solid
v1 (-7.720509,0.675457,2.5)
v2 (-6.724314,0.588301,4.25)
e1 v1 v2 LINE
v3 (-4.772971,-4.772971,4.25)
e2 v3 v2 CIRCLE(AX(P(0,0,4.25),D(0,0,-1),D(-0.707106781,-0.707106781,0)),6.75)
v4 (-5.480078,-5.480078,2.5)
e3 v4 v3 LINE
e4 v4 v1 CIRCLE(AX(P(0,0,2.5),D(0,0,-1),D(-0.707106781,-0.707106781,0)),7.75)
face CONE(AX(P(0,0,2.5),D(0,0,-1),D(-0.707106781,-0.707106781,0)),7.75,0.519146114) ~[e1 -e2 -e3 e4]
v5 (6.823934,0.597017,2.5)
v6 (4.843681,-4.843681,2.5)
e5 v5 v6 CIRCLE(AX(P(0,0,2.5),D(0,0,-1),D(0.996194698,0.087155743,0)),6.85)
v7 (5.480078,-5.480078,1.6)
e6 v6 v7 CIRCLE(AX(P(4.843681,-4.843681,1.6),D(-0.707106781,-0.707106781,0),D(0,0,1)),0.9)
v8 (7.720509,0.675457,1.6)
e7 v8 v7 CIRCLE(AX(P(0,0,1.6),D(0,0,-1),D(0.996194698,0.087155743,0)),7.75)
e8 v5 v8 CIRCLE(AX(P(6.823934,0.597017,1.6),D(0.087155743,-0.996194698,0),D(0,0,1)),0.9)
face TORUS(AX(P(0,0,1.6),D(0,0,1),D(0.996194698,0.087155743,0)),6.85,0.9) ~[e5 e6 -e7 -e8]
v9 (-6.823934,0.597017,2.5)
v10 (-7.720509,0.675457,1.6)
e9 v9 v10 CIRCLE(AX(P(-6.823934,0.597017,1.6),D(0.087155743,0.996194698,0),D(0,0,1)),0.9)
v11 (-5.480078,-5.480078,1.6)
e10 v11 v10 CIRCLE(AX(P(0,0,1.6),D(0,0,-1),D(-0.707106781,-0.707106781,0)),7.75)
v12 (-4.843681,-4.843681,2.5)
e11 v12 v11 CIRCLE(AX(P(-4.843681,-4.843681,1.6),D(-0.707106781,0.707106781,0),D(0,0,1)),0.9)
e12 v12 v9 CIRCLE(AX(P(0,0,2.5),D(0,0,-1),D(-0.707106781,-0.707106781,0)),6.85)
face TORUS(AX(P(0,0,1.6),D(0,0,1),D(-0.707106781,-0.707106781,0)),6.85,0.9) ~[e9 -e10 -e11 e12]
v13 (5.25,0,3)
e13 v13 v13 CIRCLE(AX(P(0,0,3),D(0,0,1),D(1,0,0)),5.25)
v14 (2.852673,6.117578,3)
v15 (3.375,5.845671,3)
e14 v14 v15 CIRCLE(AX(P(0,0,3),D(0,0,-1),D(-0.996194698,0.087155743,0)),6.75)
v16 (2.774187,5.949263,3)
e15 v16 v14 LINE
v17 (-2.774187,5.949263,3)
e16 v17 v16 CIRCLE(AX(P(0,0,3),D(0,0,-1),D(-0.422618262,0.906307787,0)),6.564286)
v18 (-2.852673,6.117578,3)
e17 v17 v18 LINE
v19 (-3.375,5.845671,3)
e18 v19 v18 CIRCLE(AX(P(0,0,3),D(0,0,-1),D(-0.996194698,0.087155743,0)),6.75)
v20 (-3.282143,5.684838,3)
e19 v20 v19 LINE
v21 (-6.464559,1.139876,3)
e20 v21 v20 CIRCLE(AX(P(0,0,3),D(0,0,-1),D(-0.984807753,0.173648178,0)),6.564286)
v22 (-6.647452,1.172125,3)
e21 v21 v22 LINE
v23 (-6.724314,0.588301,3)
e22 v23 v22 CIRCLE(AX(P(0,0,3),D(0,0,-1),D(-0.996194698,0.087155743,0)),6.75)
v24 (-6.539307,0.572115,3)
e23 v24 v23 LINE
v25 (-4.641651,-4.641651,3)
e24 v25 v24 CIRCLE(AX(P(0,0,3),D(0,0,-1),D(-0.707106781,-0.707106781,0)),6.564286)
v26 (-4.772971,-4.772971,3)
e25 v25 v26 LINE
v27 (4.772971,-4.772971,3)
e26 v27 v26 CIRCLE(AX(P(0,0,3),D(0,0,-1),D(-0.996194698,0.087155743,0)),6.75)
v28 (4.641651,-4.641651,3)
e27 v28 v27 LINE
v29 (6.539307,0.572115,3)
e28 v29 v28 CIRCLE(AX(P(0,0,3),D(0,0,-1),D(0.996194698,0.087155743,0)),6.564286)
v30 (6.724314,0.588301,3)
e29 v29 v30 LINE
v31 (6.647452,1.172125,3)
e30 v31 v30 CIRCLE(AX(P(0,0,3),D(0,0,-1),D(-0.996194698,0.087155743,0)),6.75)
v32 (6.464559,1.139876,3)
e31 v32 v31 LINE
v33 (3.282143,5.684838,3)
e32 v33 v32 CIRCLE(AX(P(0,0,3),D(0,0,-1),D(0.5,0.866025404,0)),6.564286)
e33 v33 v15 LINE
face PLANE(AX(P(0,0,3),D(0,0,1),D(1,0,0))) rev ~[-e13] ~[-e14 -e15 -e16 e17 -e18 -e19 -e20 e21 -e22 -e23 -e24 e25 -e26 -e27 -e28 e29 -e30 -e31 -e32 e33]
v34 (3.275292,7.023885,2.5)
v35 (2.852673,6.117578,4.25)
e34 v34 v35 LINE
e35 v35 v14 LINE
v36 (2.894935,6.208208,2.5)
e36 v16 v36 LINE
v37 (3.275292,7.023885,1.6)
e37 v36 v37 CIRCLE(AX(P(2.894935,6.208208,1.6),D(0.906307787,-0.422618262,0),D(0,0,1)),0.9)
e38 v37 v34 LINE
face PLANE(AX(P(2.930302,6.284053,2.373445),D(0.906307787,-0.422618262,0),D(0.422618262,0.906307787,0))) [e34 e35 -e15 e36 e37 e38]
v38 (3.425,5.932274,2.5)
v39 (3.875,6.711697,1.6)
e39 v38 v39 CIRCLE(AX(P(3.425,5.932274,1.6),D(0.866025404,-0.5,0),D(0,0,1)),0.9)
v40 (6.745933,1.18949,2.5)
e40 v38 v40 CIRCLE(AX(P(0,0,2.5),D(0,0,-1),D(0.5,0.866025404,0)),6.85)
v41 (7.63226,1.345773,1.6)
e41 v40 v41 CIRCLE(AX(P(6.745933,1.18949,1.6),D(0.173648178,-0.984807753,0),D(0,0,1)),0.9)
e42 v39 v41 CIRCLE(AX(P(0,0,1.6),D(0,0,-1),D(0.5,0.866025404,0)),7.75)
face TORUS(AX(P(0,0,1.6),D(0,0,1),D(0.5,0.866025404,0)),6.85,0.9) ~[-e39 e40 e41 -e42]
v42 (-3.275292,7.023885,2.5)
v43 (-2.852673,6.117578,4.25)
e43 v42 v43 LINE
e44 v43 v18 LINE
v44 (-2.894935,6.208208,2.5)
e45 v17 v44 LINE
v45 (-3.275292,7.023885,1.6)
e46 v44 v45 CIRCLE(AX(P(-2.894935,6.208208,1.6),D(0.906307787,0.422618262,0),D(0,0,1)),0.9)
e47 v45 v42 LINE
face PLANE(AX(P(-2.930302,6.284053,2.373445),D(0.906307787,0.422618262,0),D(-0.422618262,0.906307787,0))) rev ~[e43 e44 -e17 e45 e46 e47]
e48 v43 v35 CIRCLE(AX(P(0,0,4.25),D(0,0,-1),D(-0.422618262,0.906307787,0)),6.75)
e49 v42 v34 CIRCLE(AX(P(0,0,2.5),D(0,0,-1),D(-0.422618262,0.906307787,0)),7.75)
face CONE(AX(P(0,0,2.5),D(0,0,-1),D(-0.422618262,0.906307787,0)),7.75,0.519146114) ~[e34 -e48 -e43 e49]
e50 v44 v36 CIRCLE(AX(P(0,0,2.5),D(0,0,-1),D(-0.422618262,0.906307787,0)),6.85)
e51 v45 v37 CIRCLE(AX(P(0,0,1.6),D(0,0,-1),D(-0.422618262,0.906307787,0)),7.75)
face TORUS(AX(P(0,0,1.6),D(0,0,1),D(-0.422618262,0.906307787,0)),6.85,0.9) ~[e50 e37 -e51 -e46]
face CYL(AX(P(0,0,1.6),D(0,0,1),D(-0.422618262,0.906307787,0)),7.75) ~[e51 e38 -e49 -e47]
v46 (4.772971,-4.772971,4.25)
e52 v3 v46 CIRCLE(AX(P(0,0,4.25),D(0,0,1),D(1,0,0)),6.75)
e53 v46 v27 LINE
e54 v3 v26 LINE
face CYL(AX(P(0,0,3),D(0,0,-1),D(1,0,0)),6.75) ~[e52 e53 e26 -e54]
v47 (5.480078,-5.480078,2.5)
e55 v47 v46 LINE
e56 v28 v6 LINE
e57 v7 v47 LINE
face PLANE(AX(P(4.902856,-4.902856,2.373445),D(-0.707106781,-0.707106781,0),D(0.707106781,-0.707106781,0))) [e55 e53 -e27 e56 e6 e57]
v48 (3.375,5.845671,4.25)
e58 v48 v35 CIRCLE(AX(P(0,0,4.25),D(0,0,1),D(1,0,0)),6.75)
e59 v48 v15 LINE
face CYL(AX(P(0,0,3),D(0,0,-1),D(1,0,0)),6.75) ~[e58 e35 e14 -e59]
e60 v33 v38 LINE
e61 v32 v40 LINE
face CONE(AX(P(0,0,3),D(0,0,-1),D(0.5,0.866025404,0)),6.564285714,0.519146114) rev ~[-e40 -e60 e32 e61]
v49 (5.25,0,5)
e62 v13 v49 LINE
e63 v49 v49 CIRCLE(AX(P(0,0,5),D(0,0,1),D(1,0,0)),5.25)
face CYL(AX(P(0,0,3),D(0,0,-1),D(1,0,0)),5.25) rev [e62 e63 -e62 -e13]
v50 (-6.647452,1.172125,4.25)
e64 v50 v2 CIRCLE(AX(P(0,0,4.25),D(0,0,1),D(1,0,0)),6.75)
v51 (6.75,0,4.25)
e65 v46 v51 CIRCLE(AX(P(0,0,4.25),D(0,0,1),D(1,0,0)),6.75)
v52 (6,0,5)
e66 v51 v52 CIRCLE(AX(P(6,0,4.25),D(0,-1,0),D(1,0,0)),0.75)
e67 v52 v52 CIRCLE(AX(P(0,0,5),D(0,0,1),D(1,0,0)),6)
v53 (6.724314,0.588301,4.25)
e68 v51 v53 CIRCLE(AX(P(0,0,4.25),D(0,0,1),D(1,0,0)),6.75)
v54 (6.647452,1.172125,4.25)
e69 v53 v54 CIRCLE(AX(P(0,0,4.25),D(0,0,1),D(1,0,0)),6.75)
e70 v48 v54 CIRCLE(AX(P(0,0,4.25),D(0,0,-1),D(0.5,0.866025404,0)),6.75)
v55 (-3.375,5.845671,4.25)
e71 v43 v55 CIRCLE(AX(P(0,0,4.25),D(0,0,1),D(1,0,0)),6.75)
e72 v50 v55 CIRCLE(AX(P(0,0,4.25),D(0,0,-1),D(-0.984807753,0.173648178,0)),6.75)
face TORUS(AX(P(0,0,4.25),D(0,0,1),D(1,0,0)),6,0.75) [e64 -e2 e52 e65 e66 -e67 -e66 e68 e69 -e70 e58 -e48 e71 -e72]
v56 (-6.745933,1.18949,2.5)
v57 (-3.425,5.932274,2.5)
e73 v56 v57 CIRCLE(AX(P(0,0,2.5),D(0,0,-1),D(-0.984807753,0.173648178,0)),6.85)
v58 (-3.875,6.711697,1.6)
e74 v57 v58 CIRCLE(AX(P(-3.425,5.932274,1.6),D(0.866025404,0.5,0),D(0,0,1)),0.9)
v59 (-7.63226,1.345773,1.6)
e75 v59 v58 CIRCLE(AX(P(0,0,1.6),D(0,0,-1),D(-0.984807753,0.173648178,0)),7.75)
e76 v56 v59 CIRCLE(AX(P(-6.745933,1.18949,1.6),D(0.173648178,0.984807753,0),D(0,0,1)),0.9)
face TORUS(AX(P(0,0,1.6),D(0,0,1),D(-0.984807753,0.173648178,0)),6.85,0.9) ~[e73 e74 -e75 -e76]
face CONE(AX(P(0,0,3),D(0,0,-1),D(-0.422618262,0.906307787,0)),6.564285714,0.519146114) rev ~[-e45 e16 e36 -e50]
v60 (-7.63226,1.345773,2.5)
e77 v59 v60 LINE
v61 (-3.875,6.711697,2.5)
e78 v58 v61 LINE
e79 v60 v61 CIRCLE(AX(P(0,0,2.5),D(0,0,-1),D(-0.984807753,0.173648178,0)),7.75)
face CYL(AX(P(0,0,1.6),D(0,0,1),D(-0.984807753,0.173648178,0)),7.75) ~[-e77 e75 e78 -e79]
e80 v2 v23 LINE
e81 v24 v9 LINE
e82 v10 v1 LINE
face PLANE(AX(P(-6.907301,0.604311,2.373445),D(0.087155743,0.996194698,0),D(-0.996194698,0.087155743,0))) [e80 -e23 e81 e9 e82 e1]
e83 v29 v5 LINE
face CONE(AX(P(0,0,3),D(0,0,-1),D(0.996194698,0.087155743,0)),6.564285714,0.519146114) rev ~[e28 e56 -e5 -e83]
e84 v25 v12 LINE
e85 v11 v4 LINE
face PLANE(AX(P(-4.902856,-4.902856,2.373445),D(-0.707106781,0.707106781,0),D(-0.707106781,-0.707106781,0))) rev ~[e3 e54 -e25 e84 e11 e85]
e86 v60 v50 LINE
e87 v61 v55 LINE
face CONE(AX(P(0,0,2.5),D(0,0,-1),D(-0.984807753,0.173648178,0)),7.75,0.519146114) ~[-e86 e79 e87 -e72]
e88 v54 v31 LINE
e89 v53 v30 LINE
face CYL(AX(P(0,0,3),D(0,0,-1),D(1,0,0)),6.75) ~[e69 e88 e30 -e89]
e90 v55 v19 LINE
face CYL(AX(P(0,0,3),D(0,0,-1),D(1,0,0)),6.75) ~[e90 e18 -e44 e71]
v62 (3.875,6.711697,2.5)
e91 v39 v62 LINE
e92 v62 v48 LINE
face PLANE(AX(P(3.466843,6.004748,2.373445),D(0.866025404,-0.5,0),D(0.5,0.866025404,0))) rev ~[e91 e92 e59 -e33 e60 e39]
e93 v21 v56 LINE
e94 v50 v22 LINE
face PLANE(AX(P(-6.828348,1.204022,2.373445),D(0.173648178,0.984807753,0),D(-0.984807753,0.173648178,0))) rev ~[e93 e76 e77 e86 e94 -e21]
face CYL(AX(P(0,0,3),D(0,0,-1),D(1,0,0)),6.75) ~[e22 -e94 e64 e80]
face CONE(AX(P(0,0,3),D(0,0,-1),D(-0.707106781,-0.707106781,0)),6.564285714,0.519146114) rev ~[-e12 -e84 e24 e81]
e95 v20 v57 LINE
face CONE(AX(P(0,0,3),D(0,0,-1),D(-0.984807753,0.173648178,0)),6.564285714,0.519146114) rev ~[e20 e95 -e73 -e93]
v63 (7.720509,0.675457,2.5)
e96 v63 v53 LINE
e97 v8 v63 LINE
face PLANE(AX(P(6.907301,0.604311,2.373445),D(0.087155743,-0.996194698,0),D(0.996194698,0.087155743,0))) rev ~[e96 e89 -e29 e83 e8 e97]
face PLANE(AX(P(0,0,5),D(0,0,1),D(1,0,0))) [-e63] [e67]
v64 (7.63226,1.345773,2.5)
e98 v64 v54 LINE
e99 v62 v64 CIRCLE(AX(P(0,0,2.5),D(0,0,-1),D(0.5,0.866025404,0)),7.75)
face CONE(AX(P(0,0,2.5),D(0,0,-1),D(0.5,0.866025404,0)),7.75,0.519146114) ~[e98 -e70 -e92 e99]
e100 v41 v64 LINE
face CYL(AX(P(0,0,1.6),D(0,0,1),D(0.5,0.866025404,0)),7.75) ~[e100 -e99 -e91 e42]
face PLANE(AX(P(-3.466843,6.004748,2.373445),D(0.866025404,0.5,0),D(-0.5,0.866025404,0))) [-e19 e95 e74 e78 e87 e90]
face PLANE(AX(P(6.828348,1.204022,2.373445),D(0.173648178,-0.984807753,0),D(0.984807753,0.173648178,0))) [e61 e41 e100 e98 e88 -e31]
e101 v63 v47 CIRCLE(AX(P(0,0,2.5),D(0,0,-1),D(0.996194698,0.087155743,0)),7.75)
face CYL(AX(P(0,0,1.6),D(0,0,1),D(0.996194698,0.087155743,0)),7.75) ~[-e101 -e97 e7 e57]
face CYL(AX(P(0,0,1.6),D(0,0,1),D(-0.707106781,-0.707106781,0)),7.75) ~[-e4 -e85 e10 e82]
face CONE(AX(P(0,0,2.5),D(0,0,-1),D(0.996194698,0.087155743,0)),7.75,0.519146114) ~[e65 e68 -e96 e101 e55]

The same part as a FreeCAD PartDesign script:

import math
import FreeCAD as App
import Part
import Sketcher

V = App.Vector


def edges_at(feature, points):
    """Names of the edges that pass closest to the given points."""
    edges = feature.Shape.Edges
    near = lambda p: min(range(len(edges)), key=lambda i: edges[i].distToShape(Part.Vertex(*p))[0])
    return sorted({f"Edge{near(p) + 1}" for p in points})

doc = App.newDocument("Part")
body = doc.addObject("PartDesign::Body", "Body")

# Sketch on XY plane
sketch1 = body.newObject("Sketcher::SketchObject", "Sketch")
sketch1.AttachmentSupport = (doc.getObject("XY_Plane"), [""])
sketch1.MapMode = "FlatFace"
sketch1.addGeometry(Part.Circle(V(0, 0, 0), V(0, 0, 1), 6.75), False)
sketch1.addGeometry(Part.Circle(V(0, 0, 0), V(0, 0, 1), 5.25), False)
sketch1.addConstraint(Sketcher.Constraint("Coincident", 0, 3, -1, 1))
sketch1.addConstraint(Sketcher.Constraint("Coincident", 1, 3, -1, 1))
sketch1.addConstraint(Sketcher.Constraint("Diameter", 0, 13.5))
sketch1.addConstraint(Sketcher.Constraint("Diameter", 1, 10.5))
pad1 = body.newObject("PartDesign::Pad", "Pad")
pad1.Profile = sketch1
pad1.Length = 2
doc.recompute()

fillet = body.newObject("PartDesign::Fillet", "Fillet")
fillet.Base = (pad1, edges_at(pad1, [(-6.75, 0, 2)]))
fillet.Radius = 0.75

# Sketch on an angled plane
sketch2 = body.newObject("Sketcher::SketchObject", "Sketch001")
sketch2.Placement = App.Placement(V(0, 0, 0), App.Rotation(V(-0.707106781, -0.707106781, 0), V(0, 0, 0.999999999), V(-0.707106781, 0.707106781, 0), "ZXY"))
sketch2.addGeometry(Part.LineSegment(V(7.75, -1.4, 0), V(7.75, -0.5, 0)), False)
sketch2.addGeometry(Part.LineSegment(V(7.75, -0.5, 0), V(6.75, 1.25, 0)), False)
sketch2.addGeometry(Part.LineSegment(V(6.75, 1.25, 0), V(6.564286, 0, 0)), False)
sketch2.addGeometry(Part.LineSegment(V(6.564286, 0, 0), V(6.85, -0.5, 0)), False)
sketch2.addGeometry(Part.ArcOfCircle(Part.Circle(V(6.85, -1.4, 0), V(0, 0, 1), 0.9), math.radians(90), math.radians(359.999999)), False)
sketch2.addConstraint(Sketcher.Constraint("Coincident", 0, 2, 1, 1))
sketch2.addConstraint(Sketcher.Constraint("Coincident", 1, 2, 2, 1))
sketch2.addConstraint(Sketcher.Constraint("Coincident", 2, 2, 3, 1))
sketch2.addConstraint(Sketcher.Constraint("Coincident", 3, 2, 4, 1))
sketch2.addConstraint(Sketcher.Constraint("Tangent", 4, 2, 0, 1))
sketch2.addConstraint(Sketcher.Constraint("Vertical", 0))
sketch2.addConstraint(Sketcher.Constraint("PointOnObject", 2, 2, -1))
sketch2.addConstraint(Sketcher.Constraint("Parallel", 1, 3))
sketch2.addConstraint(Sketcher.Constraint("Horizontal", 0, 2, 3, 2))
sketch2.addConstraint(Sketcher.Constraint("Vertical", 4, 3, 3, 2))
sketch2.addConstraint(Sketcher.Constraint("Radius", 4, 0.9))
sketch2.addConstraint(Sketcher.Constraint("DistanceX", 1, 2, 0, 2, 1.0))
sketch2.addConstraint(Sketcher.Constraint("DistanceY", 4, 3, -1, 1, 1.4))
sketch2.addConstraint(Sketcher.Constraint("DistanceX", -1, 1, 4, 3, 6.85))
sketch2.addConstraint(Sketcher.Constraint("DistanceY", -1, 1, 1, 2, 1.25))
revolution = body.newObject("PartDesign::Revolution", "Revolution")
revolution.Profile = sketch2
revolution.ReferenceAxis = (sketch2, ["V_Axis"])
revolution.Angle = 50
revolution.Reversed = True
doc.recompute()

polarpattern = body.newObject("PartDesign::PolarPattern", "PolarPattern")
polarpattern.Originals = [revolution]
polarpattern.Axis = (doc.getObject("Z_Axis"), [""])
polarpattern.Angle = 220
polarpattern.Occurrences = 5
polarpattern.Reversed = True
body.Tip = polarpattern
body2 = doc.addObject("PartDesign::Body", "Body001")
doc.recompute()

body.Placement = App.Placement(V(0, 0, 3), App.Rotation(V(0, 0, 1), 0))
boolean = body2.newObject("PartDesign::Boolean", "Boolean")
boolean.Type = "Fuse"
boolean.addObjects([body])

doc.recompute()
